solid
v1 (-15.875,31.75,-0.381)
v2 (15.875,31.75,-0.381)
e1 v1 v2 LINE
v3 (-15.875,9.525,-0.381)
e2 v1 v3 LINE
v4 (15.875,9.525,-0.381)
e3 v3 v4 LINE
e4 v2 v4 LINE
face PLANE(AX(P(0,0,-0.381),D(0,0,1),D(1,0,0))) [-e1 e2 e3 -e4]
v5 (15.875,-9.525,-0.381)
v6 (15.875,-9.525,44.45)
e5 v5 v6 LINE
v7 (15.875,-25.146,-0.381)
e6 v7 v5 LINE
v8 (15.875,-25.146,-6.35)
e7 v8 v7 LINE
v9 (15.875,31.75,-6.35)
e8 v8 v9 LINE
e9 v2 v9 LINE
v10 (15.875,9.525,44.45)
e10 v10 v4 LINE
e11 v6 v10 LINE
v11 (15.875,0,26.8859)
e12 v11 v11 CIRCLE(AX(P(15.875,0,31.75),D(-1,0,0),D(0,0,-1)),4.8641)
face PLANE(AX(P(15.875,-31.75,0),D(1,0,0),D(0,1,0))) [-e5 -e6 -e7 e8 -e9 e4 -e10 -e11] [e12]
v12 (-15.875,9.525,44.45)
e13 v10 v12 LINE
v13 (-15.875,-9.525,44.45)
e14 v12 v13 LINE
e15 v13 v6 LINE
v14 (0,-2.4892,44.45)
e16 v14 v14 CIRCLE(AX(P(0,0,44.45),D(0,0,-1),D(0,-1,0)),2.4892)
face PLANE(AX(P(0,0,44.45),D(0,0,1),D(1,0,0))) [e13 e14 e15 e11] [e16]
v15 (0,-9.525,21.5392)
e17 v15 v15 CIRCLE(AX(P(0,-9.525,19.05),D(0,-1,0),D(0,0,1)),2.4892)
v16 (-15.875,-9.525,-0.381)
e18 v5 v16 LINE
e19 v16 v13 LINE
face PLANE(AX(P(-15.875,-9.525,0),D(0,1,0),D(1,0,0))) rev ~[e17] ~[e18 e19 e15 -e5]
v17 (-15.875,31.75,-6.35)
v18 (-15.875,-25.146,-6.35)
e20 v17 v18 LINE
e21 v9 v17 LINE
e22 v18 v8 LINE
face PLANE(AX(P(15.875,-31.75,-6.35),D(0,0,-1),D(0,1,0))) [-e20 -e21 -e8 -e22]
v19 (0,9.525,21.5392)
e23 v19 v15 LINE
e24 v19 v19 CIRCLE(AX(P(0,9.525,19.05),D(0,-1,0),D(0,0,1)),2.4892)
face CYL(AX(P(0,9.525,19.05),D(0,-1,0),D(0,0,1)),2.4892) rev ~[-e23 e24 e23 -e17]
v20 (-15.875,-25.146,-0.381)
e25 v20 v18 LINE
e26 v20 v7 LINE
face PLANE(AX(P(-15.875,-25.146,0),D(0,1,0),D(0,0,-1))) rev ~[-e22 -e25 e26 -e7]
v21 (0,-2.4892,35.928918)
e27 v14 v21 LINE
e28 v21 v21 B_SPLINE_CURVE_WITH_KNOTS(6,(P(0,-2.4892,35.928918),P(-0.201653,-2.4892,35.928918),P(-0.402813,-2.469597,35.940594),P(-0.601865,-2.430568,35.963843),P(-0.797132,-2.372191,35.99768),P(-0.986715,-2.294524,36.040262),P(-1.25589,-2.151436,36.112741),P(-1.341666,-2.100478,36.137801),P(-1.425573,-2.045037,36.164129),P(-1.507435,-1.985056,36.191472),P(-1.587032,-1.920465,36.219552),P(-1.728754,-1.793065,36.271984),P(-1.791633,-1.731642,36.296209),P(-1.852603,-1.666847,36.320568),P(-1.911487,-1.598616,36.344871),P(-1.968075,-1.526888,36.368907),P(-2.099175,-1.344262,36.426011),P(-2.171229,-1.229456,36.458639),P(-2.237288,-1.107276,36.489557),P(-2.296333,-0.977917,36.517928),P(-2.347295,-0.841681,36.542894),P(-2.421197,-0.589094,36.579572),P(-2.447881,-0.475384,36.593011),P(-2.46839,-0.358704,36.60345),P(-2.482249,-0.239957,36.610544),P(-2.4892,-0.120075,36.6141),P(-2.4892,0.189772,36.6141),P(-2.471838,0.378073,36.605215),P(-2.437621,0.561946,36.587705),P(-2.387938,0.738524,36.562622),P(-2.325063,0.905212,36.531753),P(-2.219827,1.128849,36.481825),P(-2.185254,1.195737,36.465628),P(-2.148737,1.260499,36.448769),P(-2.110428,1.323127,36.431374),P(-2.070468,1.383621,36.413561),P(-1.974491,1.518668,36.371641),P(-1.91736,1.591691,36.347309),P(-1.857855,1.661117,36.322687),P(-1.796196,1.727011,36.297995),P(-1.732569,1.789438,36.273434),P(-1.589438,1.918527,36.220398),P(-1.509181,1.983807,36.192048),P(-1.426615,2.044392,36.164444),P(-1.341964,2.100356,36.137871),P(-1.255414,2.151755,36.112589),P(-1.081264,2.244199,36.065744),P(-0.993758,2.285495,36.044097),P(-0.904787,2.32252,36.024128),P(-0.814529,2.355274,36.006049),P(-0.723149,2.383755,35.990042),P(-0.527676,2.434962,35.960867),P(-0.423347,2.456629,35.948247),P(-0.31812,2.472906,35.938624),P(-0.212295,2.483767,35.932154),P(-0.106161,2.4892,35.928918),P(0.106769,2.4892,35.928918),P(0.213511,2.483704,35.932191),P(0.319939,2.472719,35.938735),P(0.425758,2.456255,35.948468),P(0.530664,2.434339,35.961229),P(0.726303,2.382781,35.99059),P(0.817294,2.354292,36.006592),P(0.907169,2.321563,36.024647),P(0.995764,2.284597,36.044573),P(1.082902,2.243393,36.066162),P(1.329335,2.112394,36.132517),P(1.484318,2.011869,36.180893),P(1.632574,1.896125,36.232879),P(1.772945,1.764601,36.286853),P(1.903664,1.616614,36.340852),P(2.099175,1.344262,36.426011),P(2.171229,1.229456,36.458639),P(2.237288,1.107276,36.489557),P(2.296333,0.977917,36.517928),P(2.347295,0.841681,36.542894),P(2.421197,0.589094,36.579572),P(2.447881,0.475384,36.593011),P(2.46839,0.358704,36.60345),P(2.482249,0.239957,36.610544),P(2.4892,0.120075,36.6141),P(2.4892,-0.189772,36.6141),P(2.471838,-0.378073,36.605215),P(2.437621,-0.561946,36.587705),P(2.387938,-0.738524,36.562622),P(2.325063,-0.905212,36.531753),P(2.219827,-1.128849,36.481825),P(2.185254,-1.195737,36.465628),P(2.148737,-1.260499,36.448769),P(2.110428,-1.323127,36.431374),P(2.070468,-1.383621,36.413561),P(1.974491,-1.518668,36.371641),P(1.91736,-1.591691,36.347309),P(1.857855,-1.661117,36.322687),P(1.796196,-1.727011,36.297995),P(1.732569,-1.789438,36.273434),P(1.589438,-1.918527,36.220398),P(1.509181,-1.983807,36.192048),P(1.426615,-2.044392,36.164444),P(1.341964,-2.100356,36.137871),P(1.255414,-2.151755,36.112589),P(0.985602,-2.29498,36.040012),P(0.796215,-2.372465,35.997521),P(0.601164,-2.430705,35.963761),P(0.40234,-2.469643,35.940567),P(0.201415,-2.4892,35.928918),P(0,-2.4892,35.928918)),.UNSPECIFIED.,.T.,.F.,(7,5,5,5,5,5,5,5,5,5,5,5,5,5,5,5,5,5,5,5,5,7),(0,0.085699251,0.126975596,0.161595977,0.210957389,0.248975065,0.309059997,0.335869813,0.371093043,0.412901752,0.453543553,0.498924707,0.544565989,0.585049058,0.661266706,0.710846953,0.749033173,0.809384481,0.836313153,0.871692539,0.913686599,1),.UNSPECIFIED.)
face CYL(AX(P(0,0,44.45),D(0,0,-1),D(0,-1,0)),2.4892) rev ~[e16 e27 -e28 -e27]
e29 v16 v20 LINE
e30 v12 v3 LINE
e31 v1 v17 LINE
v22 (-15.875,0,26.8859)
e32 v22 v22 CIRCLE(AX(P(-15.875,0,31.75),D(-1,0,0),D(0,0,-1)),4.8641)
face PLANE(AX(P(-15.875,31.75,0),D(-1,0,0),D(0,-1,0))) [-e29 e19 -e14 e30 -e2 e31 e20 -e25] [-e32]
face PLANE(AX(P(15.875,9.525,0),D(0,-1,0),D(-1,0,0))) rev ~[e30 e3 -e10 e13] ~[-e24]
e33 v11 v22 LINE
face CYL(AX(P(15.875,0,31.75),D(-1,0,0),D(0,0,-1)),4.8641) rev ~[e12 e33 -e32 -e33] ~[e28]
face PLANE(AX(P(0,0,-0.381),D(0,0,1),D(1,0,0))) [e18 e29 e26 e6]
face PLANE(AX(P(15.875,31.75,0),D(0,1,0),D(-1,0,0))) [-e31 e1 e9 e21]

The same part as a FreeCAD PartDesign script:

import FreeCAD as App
import Part
import Sketcher

V = App.Vector
Q = App.Units.Quantity

doc = App.newDocument("Part")
body = doc.addObject("PartDesign::Body", "Body")

# Sketch on XY plane
sketch1 = doc.addObject("Sketcher::SketchObject", "Sketch")
body.addObject(sketch1)
sketch1.AttachmentSupport = (doc.XY_Plane, [""])
sketch1.MapMode = "FlatFace"
sketch1.addGeometry([
    Part.LineSegment(V(-15.875, 31.75, 0), V(-15.875, -31.75, 0)),
    Part.LineSegment(V(-15.875, -31.75, 0), V(15.875, -31.75, 0)),
    Part.LineSegment(V(15.875, -31.75, 0), V(15.875, 31.75, 0)),
    Part.LineSegment(V(15.875, 31.75, 0), V(-15.875, 31.75, 0)),
], False)
sketch1.addConstraint([
    Sketcher.Constraint("Coincident", 0, 2, 1, 1),
    Sketcher.Constraint("Coincident", 1, 2, 2, 1),
    Sketcher.Constraint("Coincident", 2, 2, 3, 1),
    Sketcher.Constraint("Coincident", 3, 2, 0, 1),
    Sketcher.Constraint("Vertical", 0),
    Sketcher.Constraint("Horizontal", 1),
    Sketcher.Constraint("Vertical", 2),
    Sketcher.Constraint("Horizontal", 3),
    Sketcher.Constraint("Symmetric", 0, 2, 2, 2, -1, 1),
    Sketcher.Constraint("DistanceY", 0, 2, 0, 1, Q("2.5 in")),
    Sketcher.Constraint("DistanceX", 1, 1, 1, 2, Q("1.25 in")),
])
pad1 = doc.addObject("PartDesign::Pad", "Pad")
body.addObject(pad1)
pad1.Profile = sketch1
pad1.Length = Q("0.5 in")
pad1.Reversed = True

# Sketch on XY plane
sketch2 = doc.addObject("Sketcher::SketchObject", "Sketch001")
body.addObject(sketch2)
sketch2.AttachmentSupport = (doc.XY_Plane, [""])
sketch2.MapMode = "FlatFace"
sketch2.addGeometry([
    Part.LineSegment(V(-15.875, 9.525, 0), V(-15.875, -9.525, 0)),
    Part.LineSegment(V(-15.875, -9.525, 0), V(15.875, -9.525, 0)),
    Part.LineSegment(V(15.875, -9.525, 0), V(15.875, 9.525, 0)),
    Part.LineSegment(V(15.875, 9.525, 0), V(-15.875, 9.525, 0)),
], False)
sketch2.addConstraint([
    Sketcher.Constraint("Coincident", 0, 2, 1, 1),
    Sketcher.Constraint("Coincident", 1, 2, 2, 1),
    Sketcher.Constraint("Coincident", 2, 2, 3, 1),
    Sketcher.Constraint("Coincident", 3, 2, 0, 1),
    Sketcher.Constraint("Vertical", 0),
    Sketcher.Constraint("Horizontal", 1),
    Sketcher.Constraint("Vertical", 2),
    Sketcher.Constraint("Horizontal", 3),
    Sketcher.Constraint("Symmetric", 0, 2, 2, 2, -1, 1),
    Sketcher.Constraint("DistanceX", 1, 1, 1, 2, Q("1.25 in")),
    Sketcher.Constraint("DistanceY", 0, 2, 0, 1, Q("0.75 in")),
])
pad2 = doc.addObject("PartDesign::Pad", "Pad001")
body.addObject(pad2)
pad2.Profile = sketch2
pad2.Length = Q("1.75 in")

# Sketch on YZ plane
sketch3 = doc.addObject("Sketcher::SketchObject", "Sketch002")
body.addObject(sketch3)
sketch3.AttachmentSupport = (doc.YZ_Plane, [""])
sketch3.MapMode = "FlatFace"
sketch3.AttachmentOffset = App.Placement(V(0, 0, 0.625 * 25.4), App.Rotation())
sketch3.addGeometry(Part.Circle(V(0, 31.75, 0), V(0, 0, 1), 4.8641), False)
sketch3.addConstraint([
    Sketcher.Constraint("PointOnObject", 0, 3, -2),
    Sketcher.Constraint("Diameter", 0, Q("0.383 in")),
    Sketcher.Constraint("DistanceY", -1, 1, 0, 3, Q("1.25 in")),
])
doc.recompute()
hole = doc.addObject("PartDesign::Hole", "Hole")
body.addObject(hole)
hole.Profile = sketch3
hole.ThreadType = "None"
hole.Diameter = Q("0.383 in")
hole.DepthType = "ThroughAll"

# Sketch on YZ plane
sketch4 = doc.addObject("Sketcher::SketchObject", "Sketch003")
body.addObject(sketch4)
sketch4.AttachmentSupport = (doc.YZ_Plane, [""])
sketch4.MapMode = "FlatFace"
sketch4.AttachmentOffset = App.Placement(V(0, 0, 0.625 * 25.4), App.Rotation())
sketch4.addGeometry([
    Part.LineSegment(V(31.75, -12.7, 0), V(31.75, -6.35, 0)),
    Part.LineSegment(V(31.75, -6.35, 0), V(-31.75, -6.35, 0)),
    Part.LineSegment(V(-31.75, -6.35, 0), V(-31.75, -12.7, 0)),
    Part.LineSegment(V(-31.75, -12.7, 0), V(31.75, -12.7, 0)),
], False)
sketch4.addConstraint([
    Sketcher.Constraint("Coincident", 0, 2, 1, 1),
    Sketcher.Constraint("Coincident", 1, 2, 2, 1),
    Sketcher.Constraint("Coincident", 2, 2, 3, 1),
    Sketcher.Constraint("Coincident", 3, 2, 0, 1),
    Sketcher.Constraint("Vertical", 0),
    Sketcher.Constraint("Horizontal", 1),
    Sketcher.Constraint("Vertical", 2),
    Sketcher.Constraint("Horizontal", 3),
    Sketcher.Constraint("DistanceY", 0, 1, 0, 2, Q("0.25 in")),
    Sketcher.Constraint("DistanceY", 0, 2, -1, 1, Q("0.25 in")),
    Sketcher.Constraint("DistanceX", 1, 2, 1, 1, Q("2.5 in")),
    Sketcher.Constraint("DistanceX", -1, 1, 0, 2, Q("1.25 in")),
])
pocket1 = doc.addObject("PartDesign::Pocket", "Pocket")
body.addObject(pocket1)
pocket1.Profile = sketch4
pocket1.Type = "ThroughAll"

# Sketch on YZ plane
sketch5 = doc.addObject("Sketcher::SketchObject", "Sketch004")
body.addObject(sketch5)
sketch5.AttachmentSupport = (doc.YZ_Plane, [""])
sketch5.MapMode = "FlatFace"
sketch5.AttachmentOffset = App.Placement(V(0, 0, -0.625 * 25.4), App.Rotation())
sketch5.addGeometry([
    Part.LineSegment(V(-31.75, -6.35, 0), V(-31.75, 0, 0)),
    Part.LineSegment(V(-31.75, 0, 0), V(-25.146, 0, 0)),
    Part.LineSegment(V(-25.146, 0, 0), V(-25.146, -6.35, 0)),
    Part.LineSegment(V(-25.146, -6.35, 0), V(-31.75, -6.35, 0)),
], False)
sketch5.addConstraint([
    Sketcher.Constraint("Coincident", 0, 2, 1, 1),
    Sketcher.Constraint("Coincident", 1, 2, 2, 1),
    Sketcher.Constraint("Coincident", 2, 2, 3, 1),
    Sketcher.Constraint("Coincident", 3, 2, 0, 1),
    Sketcher.Constraint("Vertical", 0),
    Sketcher.Constraint("Horizontal", 1),
    Sketcher.Constraint("Vertical", 2),
    Sketcher.Constraint("Horizontal", 3),
    Sketcher.Constraint("PointOnObject", 0, 2, -1),
    Sketcher.Constraint("DistanceX", 1, 1, 1, 2, Q("0.26 in")),
    Sketcher.Constraint("DistanceY", 0, 1, 0, 2, Q("0.25 in")),
    Sketcher.Constraint("DistanceX", 0, 2, -1, 1, Q("1.25 in")),
])
pocket2 = doc.addObject("PartDesign::Pocket", "Pocket001")
body.addObject(pocket2)
pocket2.Profile = sketch5
pocket2.Type = "ThroughAll"
pocket2.Reversed = True

# Sketch on XZ plane
sketch6 = doc.addObject("Sketcher::SketchObject", "Sketch005")
body.addObject(sketch6)
sketch6.AttachmentSupport = (doc.XZ_Plane, [""])
sketch6.MapMode = "FlatFace"
sketch6.AttachmentOffset = App.Placement(V(0, 0, -0.375 * 25.4), App.Rotation())
sketch6.addGeometry(Part.Circle(V(0, 19.05, 0), V(0, 0, 1), 2.4892), False)
sketch6.addConstraint([
    Sketcher.Constraint("PointOnObject", 0, 3, -2),
    Sketcher.Constraint("Diameter", 0, Q("0.196 in")),
    Sketcher.Constraint("DistanceY", -1, 1, 0, 3, Q("0.75 in")),
])
doc.recompute()
hole2 = doc.addObject("PartDesign::Hole", "Hole001")
body.addObject(hole2)
hole2.Profile = sketch6
hole2.ThreadType = "None"
hole2.Diameter = Q("0.196 in")
hole2.DepthType = "ThroughAll"
hole2.Reversed = True

# Sketch on XY plane
sketch7 = doc.addObject("Sketcher::SketchObject", "Sketch006")
body.addObject(sketch7)
sketch7.AttachmentSupport = (doc.XY_Plane, [""])
sketch7.MapMode = "FlatFace"
sketch7.AttachmentOffset = App.Placement(V(0, 0, 1.75 * 25.4), App.Rotation())
sketch7.addGeometry(Part.Circle(V(0, 0, 0), V(0, 0, 1), 2.4892), False)
sketch7.addConstraint([
    Sketcher.Constraint("Coincident", 0, 3, -1, 1),
    Sketcher.Constraint("Diameter", 0, Q("0.196 in")),
])
doc.recompute()
hole3 = doc.addObject("PartDesign::Hole", "Hole002")
body.addObject(hole3)
hole3.Profile = sketch7
hole3.ThreadType = "None"
hole3.Diameter = Q("0.196 in")
hole3.DepthType = "Dimension"
hole3.Depth = Q("0.5 in")
hole3.DrillPoint = "Angled"
hole3.DrillPointAngle = 118

# Sketch on XY plane
sketch8 = doc.addObject("Sketcher::SketchObject", "Sketch007")
body.addObject(sketch8)
sketch8.AttachmentSupport = (doc.XY_Plane, [""])
sketch8.MapMode = "FlatFace"
sketch8.addGeometry([
    Part.LineSegment(V(15.875, 31.75, 0), V(-15.875, 31.75, 0)),
    Part.LineSegment(V(-15.875, 31.75, 0), V(-15.875, 9.525, 0)),
    Part.LineSegment(V(-15.875, 9.525, 0), V(15.875, 9.525, 0)),
    Part.LineSegment(V(15.875, 9.525, 0), V(15.875, 31.75, 0)),
], False)
sketch8.addConstraint([
    Sketcher.Constraint("Coincident", 0, 2, 1, 1),
    Sketcher.Constraint("Coincident", 1, 2, 2, 1),
    Sketcher.Constraint("Coincident", 2, 2, 3, 1),
    Sketcher.Constraint("Coincident", 3, 2, 0, 1),
    Sketcher.Constraint("Horizontal", 0),
    Sketcher.Constraint("Vertical", 1),
    Sketcher.Constraint("Horizontal", 2),
    Sketcher.Constraint("Vertical", 3),
    Sketcher.Constraint("DistanceX", 0, 2, 0, 1, Q("1.25 in")),
    Sketcher.Constraint("DistanceY", 1, 2, 1, 1, Q("0.875 in")),
    Sketcher.Constraint("DistanceY", -1, 1, 0, 2, Q("1.25 in")),
    Sketcher.Constraint("DistanceX", 0, 2, -1, 1, Q("0.625 in")),
])
pocket3 = doc.addObject("PartDesign::Pocket", "Pocket002")
body.addObject(pocket3)
pocket3.Profile = sketch8
pocket3.Length = Q("0.015 in")

# Sketch on XY plane
sketch9 = doc.addObject("Sketcher::SketchObject", "Sketch008")
body.addObject(sketch9)
sketch9.AttachmentSupport = (doc.XY_Plane, [""])
sketch9.MapMode = "FlatFace"
sketch9.addGeometry([
    Part.LineSegment(V(-15.875, -9.525, 0), V(-15.875, -25.146, 0)),
    Part.LineSegment(V(-15.875, -25.146, 0), V(15.875, -25.146, 0)),
    Part.LineSegment(V(15.875, -25.146, 0), V(15.875, -9.525, 0)),
    Part.LineSegment(V(15.875, -9.525, 0), V(-15.875, -9.525, 0)),
], False)
sketch9.addConstraint([
    Sketcher.Constraint("Coincident", 0, 2, 1, 1),
    Sketcher.Constraint("Coincident", 1, 2, 2, 1),
    Sketcher.Constraint("Coincident", 2, 2, 3, 1),
    Sketcher.Constraint("Coincident", 3, 2, 0, 1),
    Sketcher.Constraint("Vertical", 0),
    Sketcher.Constraint("Horizontal", 1),
    Sketcher.Constraint("Vertical", 2),
    Sketcher.Constraint("Horizontal", 3),
    Sketcher.Constraint("DistanceX", 1, 1, 1, 2, Q("1.25 in")),
    Sketcher.Constraint("DistanceY", 0, 2, 0, 1, Q("0.615 in")),
    Sketcher.Constraint("DistanceY", 0, 2, -1, 1, Q("0.99 in")),
    Sketcher.Constraint("DistanceX", 0, 2, -1, 1, Q("0.625 in")),
])
pocket4 = doc.addObject("PartDesign::Pocket", "Pocket003")
body.addObject(pocket4)
pocket4.Profile = sketch9
pocket4.Length = Q("0.015 in")

doc.recompute()
